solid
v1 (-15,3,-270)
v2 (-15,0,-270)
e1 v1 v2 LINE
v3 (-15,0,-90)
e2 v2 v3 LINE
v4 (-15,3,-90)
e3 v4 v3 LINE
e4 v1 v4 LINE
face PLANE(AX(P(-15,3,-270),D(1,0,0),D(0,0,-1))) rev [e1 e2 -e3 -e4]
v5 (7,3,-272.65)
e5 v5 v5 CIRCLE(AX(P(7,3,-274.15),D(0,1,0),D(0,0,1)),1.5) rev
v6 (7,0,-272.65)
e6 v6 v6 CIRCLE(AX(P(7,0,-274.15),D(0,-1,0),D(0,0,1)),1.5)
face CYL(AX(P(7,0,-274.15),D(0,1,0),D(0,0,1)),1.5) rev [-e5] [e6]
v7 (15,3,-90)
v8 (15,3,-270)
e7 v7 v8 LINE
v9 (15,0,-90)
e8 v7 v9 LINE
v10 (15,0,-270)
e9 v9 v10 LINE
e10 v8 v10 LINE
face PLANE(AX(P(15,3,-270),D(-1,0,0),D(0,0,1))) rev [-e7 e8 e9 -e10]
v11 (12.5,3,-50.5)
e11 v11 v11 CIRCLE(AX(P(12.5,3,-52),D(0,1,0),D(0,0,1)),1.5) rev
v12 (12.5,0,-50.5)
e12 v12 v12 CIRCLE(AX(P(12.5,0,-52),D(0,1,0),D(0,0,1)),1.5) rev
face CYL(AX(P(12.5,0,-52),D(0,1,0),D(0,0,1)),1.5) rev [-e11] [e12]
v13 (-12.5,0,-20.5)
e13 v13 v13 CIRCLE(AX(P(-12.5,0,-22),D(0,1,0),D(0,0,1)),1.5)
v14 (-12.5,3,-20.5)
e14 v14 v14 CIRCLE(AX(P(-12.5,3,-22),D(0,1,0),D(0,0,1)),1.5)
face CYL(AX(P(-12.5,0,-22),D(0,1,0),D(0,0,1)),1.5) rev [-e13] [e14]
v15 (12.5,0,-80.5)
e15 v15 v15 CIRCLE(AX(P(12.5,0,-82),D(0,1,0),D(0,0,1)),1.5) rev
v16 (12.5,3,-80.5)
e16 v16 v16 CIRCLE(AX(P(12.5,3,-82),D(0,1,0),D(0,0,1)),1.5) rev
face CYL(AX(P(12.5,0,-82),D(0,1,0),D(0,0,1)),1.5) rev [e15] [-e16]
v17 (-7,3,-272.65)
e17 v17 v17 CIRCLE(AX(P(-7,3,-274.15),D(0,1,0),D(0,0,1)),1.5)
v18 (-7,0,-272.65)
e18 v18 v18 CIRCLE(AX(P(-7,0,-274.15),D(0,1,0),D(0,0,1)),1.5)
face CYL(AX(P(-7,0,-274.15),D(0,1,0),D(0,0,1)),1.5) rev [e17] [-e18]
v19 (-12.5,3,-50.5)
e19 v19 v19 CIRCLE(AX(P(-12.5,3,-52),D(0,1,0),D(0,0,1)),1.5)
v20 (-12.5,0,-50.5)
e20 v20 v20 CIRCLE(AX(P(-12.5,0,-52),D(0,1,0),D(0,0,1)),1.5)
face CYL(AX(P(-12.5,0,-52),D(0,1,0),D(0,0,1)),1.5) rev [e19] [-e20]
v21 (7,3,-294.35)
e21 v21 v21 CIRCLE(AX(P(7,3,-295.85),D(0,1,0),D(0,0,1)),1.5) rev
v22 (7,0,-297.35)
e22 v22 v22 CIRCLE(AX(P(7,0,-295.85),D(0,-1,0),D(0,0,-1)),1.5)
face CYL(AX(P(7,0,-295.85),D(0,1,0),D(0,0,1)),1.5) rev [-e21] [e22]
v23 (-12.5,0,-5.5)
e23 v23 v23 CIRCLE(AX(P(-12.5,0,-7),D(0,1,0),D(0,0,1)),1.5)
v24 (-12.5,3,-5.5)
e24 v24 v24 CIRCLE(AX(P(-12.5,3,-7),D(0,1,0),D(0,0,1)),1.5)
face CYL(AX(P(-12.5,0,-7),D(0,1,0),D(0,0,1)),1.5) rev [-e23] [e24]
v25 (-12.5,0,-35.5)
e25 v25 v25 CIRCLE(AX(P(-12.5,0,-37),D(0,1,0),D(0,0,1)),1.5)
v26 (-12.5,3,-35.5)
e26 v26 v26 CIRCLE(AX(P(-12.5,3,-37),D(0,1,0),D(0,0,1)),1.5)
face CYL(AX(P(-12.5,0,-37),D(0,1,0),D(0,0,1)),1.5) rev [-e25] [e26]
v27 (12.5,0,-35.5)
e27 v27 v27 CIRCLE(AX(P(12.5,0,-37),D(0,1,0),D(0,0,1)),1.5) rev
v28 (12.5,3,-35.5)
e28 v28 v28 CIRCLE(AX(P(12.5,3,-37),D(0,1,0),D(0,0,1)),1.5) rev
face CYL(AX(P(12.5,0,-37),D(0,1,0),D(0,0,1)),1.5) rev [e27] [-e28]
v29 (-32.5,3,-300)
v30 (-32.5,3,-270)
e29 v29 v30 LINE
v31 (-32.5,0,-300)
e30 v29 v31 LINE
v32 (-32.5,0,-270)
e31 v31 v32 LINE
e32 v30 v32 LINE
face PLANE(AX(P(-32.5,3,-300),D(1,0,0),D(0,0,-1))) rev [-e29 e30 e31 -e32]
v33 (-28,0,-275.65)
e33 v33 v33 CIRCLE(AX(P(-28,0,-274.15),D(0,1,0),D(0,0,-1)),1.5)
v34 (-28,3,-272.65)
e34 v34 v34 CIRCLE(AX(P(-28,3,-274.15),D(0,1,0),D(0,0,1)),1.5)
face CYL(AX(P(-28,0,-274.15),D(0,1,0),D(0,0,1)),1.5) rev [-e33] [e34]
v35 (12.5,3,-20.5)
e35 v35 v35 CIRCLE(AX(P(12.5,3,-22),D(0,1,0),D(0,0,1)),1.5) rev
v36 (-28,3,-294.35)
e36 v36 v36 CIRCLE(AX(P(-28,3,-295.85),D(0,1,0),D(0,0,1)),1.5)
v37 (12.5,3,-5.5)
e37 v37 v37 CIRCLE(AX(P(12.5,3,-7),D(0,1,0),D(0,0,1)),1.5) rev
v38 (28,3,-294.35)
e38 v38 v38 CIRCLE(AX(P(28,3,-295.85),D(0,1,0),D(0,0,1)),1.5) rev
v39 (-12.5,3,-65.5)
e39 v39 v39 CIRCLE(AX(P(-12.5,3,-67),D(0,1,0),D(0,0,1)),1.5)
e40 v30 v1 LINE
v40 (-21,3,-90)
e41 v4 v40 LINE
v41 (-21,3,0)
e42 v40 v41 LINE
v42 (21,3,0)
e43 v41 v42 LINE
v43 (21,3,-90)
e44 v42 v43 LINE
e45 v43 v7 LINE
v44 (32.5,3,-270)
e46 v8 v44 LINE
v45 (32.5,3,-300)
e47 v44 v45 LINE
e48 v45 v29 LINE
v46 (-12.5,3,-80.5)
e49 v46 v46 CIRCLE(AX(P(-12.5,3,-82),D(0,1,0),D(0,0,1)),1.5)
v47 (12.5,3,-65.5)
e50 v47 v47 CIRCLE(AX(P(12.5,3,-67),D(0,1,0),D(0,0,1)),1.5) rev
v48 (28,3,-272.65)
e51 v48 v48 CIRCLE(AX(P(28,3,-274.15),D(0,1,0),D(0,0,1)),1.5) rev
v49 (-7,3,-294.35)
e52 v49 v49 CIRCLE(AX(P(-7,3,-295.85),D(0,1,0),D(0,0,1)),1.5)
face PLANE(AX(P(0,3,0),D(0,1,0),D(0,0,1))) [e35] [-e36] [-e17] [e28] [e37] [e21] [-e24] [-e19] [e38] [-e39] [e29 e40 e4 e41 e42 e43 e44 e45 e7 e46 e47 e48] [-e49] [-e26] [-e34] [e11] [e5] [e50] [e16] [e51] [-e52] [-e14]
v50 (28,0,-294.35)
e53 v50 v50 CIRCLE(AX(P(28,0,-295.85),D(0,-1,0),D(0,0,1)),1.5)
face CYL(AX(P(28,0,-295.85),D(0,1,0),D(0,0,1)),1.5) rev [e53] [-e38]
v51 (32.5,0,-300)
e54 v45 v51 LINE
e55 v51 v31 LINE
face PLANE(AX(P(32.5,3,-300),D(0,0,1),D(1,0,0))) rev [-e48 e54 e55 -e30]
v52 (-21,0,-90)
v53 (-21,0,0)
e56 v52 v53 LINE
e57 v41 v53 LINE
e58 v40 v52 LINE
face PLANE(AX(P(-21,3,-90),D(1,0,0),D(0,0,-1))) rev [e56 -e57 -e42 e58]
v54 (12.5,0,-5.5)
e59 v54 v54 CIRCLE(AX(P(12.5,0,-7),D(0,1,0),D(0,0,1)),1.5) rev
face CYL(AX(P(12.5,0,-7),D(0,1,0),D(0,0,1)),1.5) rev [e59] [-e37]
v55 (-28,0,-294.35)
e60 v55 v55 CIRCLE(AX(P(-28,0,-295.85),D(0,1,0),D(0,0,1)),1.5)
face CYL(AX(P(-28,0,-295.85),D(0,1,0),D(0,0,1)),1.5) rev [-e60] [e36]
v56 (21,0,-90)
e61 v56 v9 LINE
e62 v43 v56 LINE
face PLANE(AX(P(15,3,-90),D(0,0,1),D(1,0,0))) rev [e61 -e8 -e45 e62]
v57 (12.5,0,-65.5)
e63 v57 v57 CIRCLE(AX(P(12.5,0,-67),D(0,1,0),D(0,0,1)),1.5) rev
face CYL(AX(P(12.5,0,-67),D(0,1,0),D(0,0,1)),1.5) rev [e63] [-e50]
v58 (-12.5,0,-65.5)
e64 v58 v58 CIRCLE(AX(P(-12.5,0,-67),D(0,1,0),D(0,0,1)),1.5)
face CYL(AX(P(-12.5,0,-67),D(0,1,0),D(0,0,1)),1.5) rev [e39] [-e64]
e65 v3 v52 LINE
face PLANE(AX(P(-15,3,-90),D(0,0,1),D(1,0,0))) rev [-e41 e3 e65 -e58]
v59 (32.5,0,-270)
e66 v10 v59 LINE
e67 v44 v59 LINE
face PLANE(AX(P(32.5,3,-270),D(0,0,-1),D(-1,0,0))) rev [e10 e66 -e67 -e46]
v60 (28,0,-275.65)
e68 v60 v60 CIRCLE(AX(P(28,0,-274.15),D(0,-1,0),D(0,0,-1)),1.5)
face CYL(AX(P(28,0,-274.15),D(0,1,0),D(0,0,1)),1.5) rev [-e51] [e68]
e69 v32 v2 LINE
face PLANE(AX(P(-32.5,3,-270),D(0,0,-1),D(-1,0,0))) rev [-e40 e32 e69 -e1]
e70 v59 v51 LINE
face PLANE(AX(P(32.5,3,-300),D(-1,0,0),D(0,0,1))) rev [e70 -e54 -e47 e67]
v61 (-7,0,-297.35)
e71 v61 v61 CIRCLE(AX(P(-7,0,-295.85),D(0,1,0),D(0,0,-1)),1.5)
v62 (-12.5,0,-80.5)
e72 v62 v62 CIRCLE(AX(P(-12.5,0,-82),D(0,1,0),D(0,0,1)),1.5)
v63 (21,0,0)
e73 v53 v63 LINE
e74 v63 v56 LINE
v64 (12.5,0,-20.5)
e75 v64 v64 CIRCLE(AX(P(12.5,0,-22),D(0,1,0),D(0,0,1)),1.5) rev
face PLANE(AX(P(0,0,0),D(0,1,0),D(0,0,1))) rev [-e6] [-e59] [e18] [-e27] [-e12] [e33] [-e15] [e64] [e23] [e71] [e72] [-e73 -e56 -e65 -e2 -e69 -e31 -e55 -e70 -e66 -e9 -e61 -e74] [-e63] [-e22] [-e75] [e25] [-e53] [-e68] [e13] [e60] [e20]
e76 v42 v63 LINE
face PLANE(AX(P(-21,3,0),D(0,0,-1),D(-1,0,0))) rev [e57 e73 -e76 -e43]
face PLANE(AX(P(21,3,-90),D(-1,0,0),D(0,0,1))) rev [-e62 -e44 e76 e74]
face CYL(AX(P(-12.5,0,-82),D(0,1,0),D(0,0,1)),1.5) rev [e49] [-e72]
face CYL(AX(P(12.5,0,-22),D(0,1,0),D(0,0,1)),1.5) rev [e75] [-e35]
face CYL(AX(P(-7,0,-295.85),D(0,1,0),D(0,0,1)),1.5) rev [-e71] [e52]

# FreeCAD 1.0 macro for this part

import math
import FreeCAD as App
import Part
import Sketcher
from FreeCAD import Vector


def add_polygon(sketch, points):
    """Adds a closed chain of lines whose ends are joined by coincident constraints."""
    first, n = sketch.GeometryCount, len(points)
    for a, b in zip(points, points[1:] + points[:1]):
        sketch.addGeometry(Part.LineSegment(App.Vector(*a, 0), App.Vector(*b, 0)), False)
    for i in range(n):
        sketch.addConstraint(Sketcher.Constraint("Coincident", first + i, 2, first + (i + 1) % n, 1))

doc = App.newDocument("Part")
params = doc.addObject("Spreadsheet::Sheet", "Params")
for row, (alias, value) in enumerate([
    ("sketch1_width", "65 mm"),
    ("sketch1_width2", "6 mm"),
    ("sketch1_width3", "42 mm"),
    ("sketch1_height", "30 mm"),
    ("sketch1_height2", "180 mm"),
    ("pad1_length", "3 mm"),
    ("sketch2_diameter", "3 mm"),
    ("pocket1_length", "605.540388 mm"),
    ("sketch3_diameter", "3 mm"),
    ("pocket2_length", "605.540388 mm"),
    ("linearpattern_pitch", "15 mm"),
], start=1):
    params.set(f"A{row}", alias)
    params.set(f"B{row}", "=" + value)
    params.setAlias(f"B{row}", alias)

body = doc.addObject("PartDesign::Body", "Body")

# Sketch on XZ plane
sketch1 = body.newObject("Sketcher::SketchObject", "Sketch")
sketch1.AttachmentSupport = (doc.getObject("XZ_Plane"), [""])
sketch1.MapMode = "FlatFace"
add_polygon(sketch1, [(32.5, -300), (-32.5, -300), (-32.5, -270), (-15, -270), (-15, -90), (-21, -90), (-21, 0), (21, 0), (21, -90), (15, -90), (15, -270), (32.5, -270)])  # lines 0-11
sketch1.addConstraint(Sketcher.Constraint("Horizontal", 0))
sketch1.addConstraint(Sketcher.Constraint("Vertical", 1))
sketch1.addConstraint(Sketcher.Constraint("Horizontal", 2))
sketch1.addConstraint(Sketcher.Constraint("Vertical", 3))
sketch1.addConstraint(Sketcher.Constraint("Horizontal", 4))
sketch1.addConstraint(Sketcher.Constraint("Vertical", 5))
sketch1.addConstraint(Sketcher.Constraint("Horizontal", 6))
sketch1.addConstraint(Sketcher.Constraint("Vertical", 7))
sketch1.addConstraint(Sketcher.Constraint("Horizontal", 8))
sketch1.addConstraint(Sketcher.Constraint("Vertical", 9))
sketch1.addConstraint(Sketcher.Constraint("Horizontal", 10))
sketch1.addConstraint(Sketcher.Constraint("Vertical", 11))
sketch1.addConstraint(Sketcher.Constraint("Symmetric", 5, 2, 6, 2, -1, 1))
sketch1.addConstraint(Sketcher.Constraint("Symmetric", 3, 2, 8, 2, -2))
sketch1.addConstraint(Sketcher.Constraint("Symmetric", 1, 2, 10, 2, -2))
sketch1.addConstraint(Sketcher.Constraint("DistanceX", 0, 2, 0, 1, 65.0))
sketch1.addConstraint(Sketcher.Constraint("DistanceX", 4, 2, 4, 1, 6.0))
sketch1.addConstraint(Sketcher.Constraint("DistanceX", 6, 1, 6, 2, 42.0))
sketch1.addConstraint(Sketcher.Constraint("DistanceY", 1, 1, 1, 2, 30.0))
sketch1.addConstraint(Sketcher.Constraint("DistanceY", 3, 1, 3, 2, 180.0))
sketch1.addConstraint(Sketcher.Constraint("DistanceY", 5, 1, 5, 2, 90.0))
sketch1.setExpression("Constraints[27]", "Params.sketch1_width")
sketch1.setExpression("Constraints[28]", "Params.sketch1_width2")
sketch1.setExpression("Constraints[29]", "Params.sketch1_width3")
sketch1.setExpression("Constraints[30]", "Params.sketch1_height")
sketch1.setExpression("Constraints[31]", "Params.sketch1_height2")
pad1 = body.newObject("PartDesign::Pad", "Pad")
pad1.Profile = sketch1
pad1.setExpression("Length", "Params.pad1_length")
pad1.Reversed = True

# Sketch on XZ plane
sketch2 = body.newObject("Sketcher::SketchObject", "Sketch001")
sketch2.AttachmentSupport = (doc.getObject("XZ_Plane"), [""])
sketch2.MapMode = "FlatFace"
sketch2.AttachmentOffset = App.Placement(Vector(0, 0, -3), App.Rotation())
sketch2.addGeometry(Part.Circle(Vector(-28, -295.85, 0), Vector(0, 0, 1), 1.5), False)
sketch2.addGeometry(Part.Circle(Vector(-7, -295.85, 0), Vector(0, 0, 1), 1.5), False)
sketch2.addGeometry(Part.Circle(Vector(-28, -274.15, 0), Vector(0, 0, 1), 1.5), False)
sketch2.addGeometry(Part.Circle(Vector(-7, -274.15, 0), Vector(0, 0, 1), 1.5), False)
sketch2.addConstraint(Sketcher.Constraint("Equal", 0, 1))
sketch2.addConstraint(Sketcher.Constraint("Equal", 1, 2))
sketch2.addConstraint(Sketcher.Constraint("Equal", 2, 3))
sketch2.addConstraint(Sketcher.Constraint("Horizontal", 0, 3, 1, 3))
sketch2.addConstraint(Sketcher.Constraint("Horizontal", 2, 3, 3, 3))
sketch2.addConstraint(Sketcher.Constraint("Vertical", 0, 3, 2, 3))
sketch2.addConstraint(Sketcher.Constraint("Vertical", 1, 3, 3, 3))
sketch2.addConstraint(Sketcher.Constraint("Diameter", 0, 3.0))
sketch2.addConstraint(Sketcher.Constraint("DistanceX", 0, 3, -1, 1, 28.0))
sketch2.addConstraint(Sketcher.Constraint("DistanceX", 1, 3, -1, 1, 7.0))
sketch2.addConstraint(Sketcher.Constraint("DistanceY", 0, 3, 2, 3, 21.7))
sketch2.addConstraint(Sketcher.Constraint("DistanceY", 0, 3, -1, 1, 295.85))
sketch2.setExpression("Constraints[7]", "Params.sketch2_diameter")
pocket1 = body.newObject("PartDesign::Pocket", "Pocket")
pocket1.Profile = sketch2
pocket1.setExpression("Length", "Params.pocket1_length")
pocket1.Midplane = True
doc.recompute()

mirrored = body.newObject("PartDesign::Mirrored", "Mirrored")
mirrored.Originals = [pocket1]
mirrored.MirrorPlane = (doc.getObject("YZ_Plane"), [""])
body.Tip = mirrored

# Sketch on XZ plane
sketch3 = body.newObject("Sketcher::SketchObject", "Sketch002")
sketch3.AttachmentSupport = (doc.getObject("XZ_Plane"), [""])
sketch3.MapMode = "FlatFace"
sketch3.AttachmentOffset = App.Placement(Vector(0, 0, -3), App.Rotation())
sketch3.addGeometry(Part.ArcOfCircle(Part.Circle(Vector(-12.5, -82, 0), Vector(0, 0, 1), 1.5), math.radians(-90), math.radians(0)), False)
sketch3.addGeometry(Part.ArcOfCircle(Part.Circle(Vector(-12.5, -82, 0), Vector(0, 0, 1), 1.5), math.radians(90), math.radians(270)), False)
sketch3.addGeometry(Part.ArcOfCircle(Part.Circle(Vector(-12.5, -82, 0), Vector(0, 0, 1), 1.5), math.radians(0), math.radians(90)), False)
sketch3.addGeometry(Part.Circle(Vector(12.5, -82, 0), Vector(0, 0, 1), 1.5), False)
sketch3.addConstraint(Sketcher.Constraint("Tangent", 0, 1, 1, 2))
sketch3.addConstraint(Sketcher.Constraint("Tangent", 1, 1, 2, 2))
sketch3.addConstraint(Sketcher.Constraint("Tangent", 2, 1, 0, 2))
sketch3.addConstraint(Sketcher.Constraint("Equal", 2, 3))
sketch3.addConstraint(Sketcher.Constraint("Symmetric", 0, 3, 3, 3, -2))
sketch3.addConstraint(Sketcher.Constraint("Horizontal", 3, 3, 2, 1))
sketch3.addConstraint(Sketcher.Constraint("Vertical", 2, 3, 0, 1))
sketch3.addConstraint(Sketcher.Constraint("Vertical", 0, 1, 1, 1))
sketch3.addConstraint(Sketcher.Constraint("Diameter", 3, 3.0))
sketch3.addConstraint(Sketcher.Constraint("DistanceY", 0, 3, -1, 1, 82.0))
sketch3.addConstraint(Sketcher.Constraint("DistanceX", 2, 1, -1, 1, 11.0))
sketch3.setExpression("Constraints[8]", "Params.sketch3_diameter")
pocket2 = body.newObject("PartDesign::Pocket", "Pocket001")
pocket2.Profile = sketch3
pocket2.setExpression("Length", "Params.pocket2_length")
pocket2.Midplane = True
doc.recompute()

linearpattern = body.newObject("PartDesign::LinearPattern", "LinearPattern")
linearpattern.Originals = [pocket2]
linearpattern.Direction = (doc.getObject("Z_Axis"), [""])
linearpattern.Mode = "offset"
linearpattern.setExpression("Offset", "Params.linearpattern_pitch")
linearpattern.Occurrences = 6
body.Tip = linearpattern

doc.recompute()
